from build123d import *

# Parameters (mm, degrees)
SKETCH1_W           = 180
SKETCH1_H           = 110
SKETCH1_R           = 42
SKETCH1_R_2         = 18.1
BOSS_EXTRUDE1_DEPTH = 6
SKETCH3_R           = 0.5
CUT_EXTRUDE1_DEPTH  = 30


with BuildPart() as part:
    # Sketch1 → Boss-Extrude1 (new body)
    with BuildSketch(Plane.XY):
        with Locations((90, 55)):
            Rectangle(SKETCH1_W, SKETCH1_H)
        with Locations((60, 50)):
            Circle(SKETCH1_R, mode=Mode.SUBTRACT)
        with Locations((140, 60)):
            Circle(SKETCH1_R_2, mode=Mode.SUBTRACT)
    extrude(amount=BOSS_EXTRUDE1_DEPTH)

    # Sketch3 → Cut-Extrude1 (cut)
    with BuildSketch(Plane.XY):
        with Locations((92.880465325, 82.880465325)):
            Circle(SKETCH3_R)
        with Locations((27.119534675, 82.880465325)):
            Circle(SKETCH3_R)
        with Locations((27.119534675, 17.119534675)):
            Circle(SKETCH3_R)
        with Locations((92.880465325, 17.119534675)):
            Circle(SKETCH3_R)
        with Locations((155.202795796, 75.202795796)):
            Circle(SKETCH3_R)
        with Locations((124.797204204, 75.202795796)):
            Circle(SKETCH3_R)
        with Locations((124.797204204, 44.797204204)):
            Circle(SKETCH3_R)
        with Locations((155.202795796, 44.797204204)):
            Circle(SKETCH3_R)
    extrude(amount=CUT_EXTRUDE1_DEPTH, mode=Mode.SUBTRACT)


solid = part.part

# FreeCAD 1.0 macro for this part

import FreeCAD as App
import Part
import Sketcher
from FreeCAD import Vector

doc = App.newDocument("Part")
body = doc.addObject("PartDesign::Body", "Body")

# Sketch on XY plane
sketch1 = body.newObject("Sketcher::SketchObject", "Sketch")
sketch1.AttachmentSupport = (doc.getObject("XY_Plane"), [""])
sketch1.MapMode = "FlatFace"
sketch1.addGeometry(Part.LineSegment(Vector(0, 110, 0), Vector(0, 0, 0)), False)
sketch1.addGeometry(Part.LineSegment(Vector(0, 0, 0), Vector(180, 0, 0)), False)
sketch1.addGeometry(Part.LineSegment(Vector(180, 0, 0), Vector(180, 110, 0)), False)
sketch1.addGeometry(Part.LineSegment(Vector(180, 110, 0), Vector(0, 110, 0)), False)
sketch1.addGeometry(Part.Circle(Vector(60, 50, 0), Vector(0, 0, 1), 42), False)
sketch1.addGeometry(Part.Circle(Vector(140, 60, 0), Vector(0, 0, 1), 18.1), False)
sketch1.addConstraint(Sketcher.Constraint("Coincident", 0, 2, 1, 1))
sketch1.addConstraint(Sketcher.Constraint("Coincident", 1, 2, 2, 1))
sketch1.addConstraint(Sketcher.Constraint("Coincident", 2, 2, 3, 1))
sketch1.addConstraint(Sketcher.Constraint("Coincident", 3, 2, 0, 1))
sketch1.addConstraint(Sketcher.Constraint("Vertical", 0))
sketch1.addConstraint(Sketcher.Constraint("Horizontal", 1))
sketch1.addConstraint(Sketcher.Constraint("Vertical", 2))
sketch1.addConstraint(Sketcher.Constraint("Horizontal", 3))
sketch1.addConstraint(Sketcher.Constraint("Coincident", 0, 2, -1, 1))
sketch1.addConstraint(Sketcher.Constraint("Diameter", 4, 84.0))
sketch1.addConstraint(Sketcher.Constraint("Diameter", 5, 36.2))
sketch1.addConstraint(Sketcher.Constraint("DistanceX", 1, 1, 1, 2, 180.0))
sketch1.addConstraint(Sketcher.Constraint("DistanceY", 0, 2, 0, 1, 110.0))
sketch1.addConstraint(Sketcher.Constraint("DistanceX", -1, 1, 4, 3, 60.0))
sketch1.addConstraint(Sketcher.Constraint("DistanceY", -1, 1, 4, 3, 50.0))
sketch1.addConstraint(Sketcher.Constraint("DistanceX", -1, 1, 5, 3, 140.0))
sketch1.addConstraint(Sketcher.Constraint("DistanceY", -1, 1, 5, 3, 60.0))
pad1 = body.newObject("PartDesign::Pad", "Pad")
pad1.Profile = sketch1
pad1.Length = 6

# Sketch on XY plane
sketch2 = body.newObject("Sketcher::SketchObject", "Sketch001")
sketch2.AttachmentSupport = (doc.getObject("XY_Plane"), [""])
sketch2.MapMode = "FlatFace"
sketch2.addGeometry(Part.Circle(Vector(92.880465, 82.880465, 0), Vector(0, 0, 1), 0.5), False)
sketch2.addGeometry(Part.Circle(Vector(27.119535, 82.880465, 0), Vector(0, 0, 1), 0.5), False)
sketch2.addGeometry(Part.Circle(Vector(27.119535, 17.119535, 0), Vector(0, 0, 1), 0.5), False)
sketch2.addGeometry(Part.Circle(Vector(92.880465, 17.119535, 0), Vector(0, 0, 1), 0.5), False)
sketch2.addGeometry(Part.Circle(Vector(155.202796, 75.202796, 0), Vector(0, 0, 1), 0.5), False)
sketch2.addGeometry(Part.Circle(Vector(124.797204, 75.202796, 0), Vector(0, 0, 1), 0.5), False)
sketch2.addGeometry(Part.Circle(Vector(124.797204, 44.797204, 0), Vector(0, 0, 1), 0.5), False)
sketch2.addGeometry(Part.Circle(Vector(155.202796, 44.797204, 0), Vector(0, 0, 1), 0.5), False)
sketch2.addConstraint(Sketcher.Constraint("Equal", 0, 1))
sketch2.addConstraint(Sketcher.Constraint("Equal", 1, 2))
sketch2.addConstraint(Sketcher.Constraint("Equal", 2, 3))
sketch2.addConstraint(Sketcher.Constraint("Equal", 3, 4))
sketch2.addConstraint(Sketcher.Constraint("Equal", 4, 5))
sketch2.addConstraint(Sketcher.Constraint("Equal", 5, 6))
sketch2.addConstraint(Sketcher.Constraint("Equal", 6, 7))
sketch2.addConstraint(Sketcher.Constraint("Horizontal", 0, 3, 1, 3))
sketch2.addConstraint(Sketcher.Constraint("Horizontal", 2, 3, 3, 3))
sketch2.addConstraint(Sketcher.Constraint("Horizontal", 4, 3, 5, 3))
sketch2.addConstraint(Sketcher.Constraint("Horizontal", 6, 3, 7, 3))
sketch2.addConstraint(Sketcher.Constraint("Vertical", 1, 3, 2, 3))
sketch2.addConstraint(Sketcher.Constraint("Vertical", 0, 3, 3, 3))
sketch2.addConstraint(Sketcher.Constraint("Vertical", 5, 3, 6, 3))
sketch2.addConstraint(Sketcher.Constraint("Vertical", 4, 3, 7, 3))
sketch2.addConstraint(Sketcher.Constraint("Diameter", 0, 1.0))
sketch2.addConstraint(Sketcher.Constraint("DistanceX", 1, 3, 0, 3, 65.760931))
sketch2.addConstraint(Sketcher.Constraint("DistanceY", 2, 3, 1, 3, 65.760931))
sketch2.addConstraint(Sketcher.Constraint("DistanceX", 0, 3, 4, 3, 62.32233))
sketch2.addConstraint(Sketcher.Constraint("DistanceY", 4, 3, 0, 3, 7.67767))
sketch2.addConstraint(Sketcher.Constraint("DistanceX", 5, 3, 4, 3, 30.405592))
sketch2.addConstraint(Sketcher.Constraint("DistanceY", 6, 3, 5, 3, 30.405592))
sketch2.addConstraint(Sketcher.Constraint("DistanceX", -1, 1, 0, 3, 92.880465))
sketch2.addConstraint(Sketcher.Constraint("DistanceY", -1, 1, 0, 3, 82.880465))
pocket1 = body.newObject("PartDesign::Pocket", "Pocket")
pocket1.Profile = sketch2
pocket1.Length = 30
pocket1.Reversed = True

doc.recompute()
